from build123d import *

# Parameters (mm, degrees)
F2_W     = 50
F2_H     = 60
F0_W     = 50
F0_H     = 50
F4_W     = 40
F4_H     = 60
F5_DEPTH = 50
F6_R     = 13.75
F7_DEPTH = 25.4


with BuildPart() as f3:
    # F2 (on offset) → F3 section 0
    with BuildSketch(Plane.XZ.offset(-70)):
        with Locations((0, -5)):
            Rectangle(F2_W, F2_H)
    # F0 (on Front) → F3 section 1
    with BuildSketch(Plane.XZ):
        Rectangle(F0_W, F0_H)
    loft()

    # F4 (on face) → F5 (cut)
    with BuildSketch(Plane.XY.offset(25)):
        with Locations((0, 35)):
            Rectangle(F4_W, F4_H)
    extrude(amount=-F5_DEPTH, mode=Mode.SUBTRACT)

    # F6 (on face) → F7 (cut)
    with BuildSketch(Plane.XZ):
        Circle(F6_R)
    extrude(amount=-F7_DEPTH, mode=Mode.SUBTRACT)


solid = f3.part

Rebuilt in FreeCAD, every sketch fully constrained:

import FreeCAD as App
import Part
import Sketcher


def add_polygon(sketch, points):
    """Adds a closed chain of lines whose ends are joined by coincident constraints."""
    first, n = sketch.GeometryCount, len(points)
    for a, b in zip(points, points[1:] + points[:1]):
        sketch.addGeometry(Part.LineSegment(App.Vector(*a, 0), App.Vector(*b, 0)), False)
    for i in range(n):
        sketch.addConstraint(Sketcher.Constraint("Coincident", first + i, 2, first + (i + 1) % n, 1))

doc = App.newDocument("Part")
body = doc.addObject("PartDesign::Body", "Body")

sketch1 = body.newObject("Sketcher::SketchObject", "Sketch")
sketch1.AttachmentSupport = (doc.getObject("XZ_Plane"), [""])
sketch1.MapMode = "FlatFace"
sketch1.AttachmentOffset = App.Placement(App.Vector(0, 0, -70), App.Rotation())
add_polygon(sketch1, [(-25, 25), (-25, -35), (25, -35), (25, 25)])
sketch1.addConstraint([
    Sketcher.Constraint("Vertical", 0),
    Sketcher.Constraint("Horizontal", 1),
    Sketcher.Constraint("Vertical", 2),
    Sketcher.Constraint("Horizontal", 3),
    Sketcher.Constraint("DistanceX", 1, 1, 1, 2, 50.0),
    Sketcher.Constraint("DistanceY", 0, 2, 0, 1, 60.0),
    Sketcher.Constraint("DistanceX", 0, 2, -1, 1, 25.0),
    Sketcher.Constraint("DistanceY", 0, 2, -1, 1, 35.0),
])

sketch2 = body.newObject("Sketcher::SketchObject", "Sketch001")
sketch2.AttachmentSupport = (doc.getObject("XZ_Plane"), [""])
sketch2.MapMode = "FlatFace"
add_polygon(sketch2, [(-25, 25), (-25, -25), (25, -25), (25, 25)])
sketch2.addConstraint([
    Sketcher.Constraint("Vertical", 0),
    Sketcher.Constraint("Horizontal", 1),
    Sketcher.Constraint("Vertical", 2),
    Sketcher.Constraint("Horizontal", 3),
    Sketcher.Constraint("Symmetric", 0, 2, 2, 2, -1, 1),
    Sketcher.Constraint("Equal", 3, 0),
    Sketcher.Constraint("DistanceX", 1, 1, 1, 2, 50.0),
])

additiveloft = body.newObject("PartDesign::AdditiveLoft", "AdditiveLoft")
additiveloft.Profile = sketch1
additiveloft.Sections = [sketch2]

sketch3 = body.newObject("Sketcher::SketchObject", "Sketch002")
sketch3.AttachmentSupport = (doc.getObject("XY_Plane"), [""])
sketch3.MapMode = "FlatFace"
sketch3.AttachmentOffset = App.Placement(App.Vector(0, 0, 25), App.Rotation())
add_polygon(sketch3, [(-20, 65), (-20, 5), (20, 5), (20, 65)])
sketch3.addConstraint([
    Sketcher.Constraint("Vertical", 0),
    Sketcher.Constraint("Horizontal", 1),
    Sketcher.Constraint("Vertical", 2),
    Sketcher.Constraint("Horizontal", 3),
    Sketcher.Constraint("DistanceX", 1, 1, 1, 2, 40.0),
    Sketcher.Constraint("DistanceY", 0, 2, 0, 1, 60.0),
    Sketcher.Constraint("DistanceX", 0, 2, -1, 1, 20.0),
    Sketcher.Constraint("DistanceY", -1, 1, 0, 2, 5.0),
])
pocket1 = body.newObject("PartDesign::Pocket", "Pocket")
pocket1.Profile = sketch3
pocket1.Length = 50

sketch4 = body.newObject("Sketcher::SketchObject", "Sketch003")
sketch4.AttachmentSupport = (doc.getObject("XZ_Plane"), [""])
sketch4.MapMode = "FlatFace"
sketch4.addGeometry(Part.Circle(App.Vector(0, 0, 0), App.Vector(0, 0, 1), 14), False)
sketch4.addConstraint([
    Sketcher.Constraint("Coincident", 0, 3, -1, 1),
    Sketcher.Constraint("Diameter", 0, 27.5),
])
pocket2 = body.newObject("PartDesign::Pocket", "Pocket001")
pocket2.Profile = sketch4
pocket2.Length = 25.4

doc.recompute()
